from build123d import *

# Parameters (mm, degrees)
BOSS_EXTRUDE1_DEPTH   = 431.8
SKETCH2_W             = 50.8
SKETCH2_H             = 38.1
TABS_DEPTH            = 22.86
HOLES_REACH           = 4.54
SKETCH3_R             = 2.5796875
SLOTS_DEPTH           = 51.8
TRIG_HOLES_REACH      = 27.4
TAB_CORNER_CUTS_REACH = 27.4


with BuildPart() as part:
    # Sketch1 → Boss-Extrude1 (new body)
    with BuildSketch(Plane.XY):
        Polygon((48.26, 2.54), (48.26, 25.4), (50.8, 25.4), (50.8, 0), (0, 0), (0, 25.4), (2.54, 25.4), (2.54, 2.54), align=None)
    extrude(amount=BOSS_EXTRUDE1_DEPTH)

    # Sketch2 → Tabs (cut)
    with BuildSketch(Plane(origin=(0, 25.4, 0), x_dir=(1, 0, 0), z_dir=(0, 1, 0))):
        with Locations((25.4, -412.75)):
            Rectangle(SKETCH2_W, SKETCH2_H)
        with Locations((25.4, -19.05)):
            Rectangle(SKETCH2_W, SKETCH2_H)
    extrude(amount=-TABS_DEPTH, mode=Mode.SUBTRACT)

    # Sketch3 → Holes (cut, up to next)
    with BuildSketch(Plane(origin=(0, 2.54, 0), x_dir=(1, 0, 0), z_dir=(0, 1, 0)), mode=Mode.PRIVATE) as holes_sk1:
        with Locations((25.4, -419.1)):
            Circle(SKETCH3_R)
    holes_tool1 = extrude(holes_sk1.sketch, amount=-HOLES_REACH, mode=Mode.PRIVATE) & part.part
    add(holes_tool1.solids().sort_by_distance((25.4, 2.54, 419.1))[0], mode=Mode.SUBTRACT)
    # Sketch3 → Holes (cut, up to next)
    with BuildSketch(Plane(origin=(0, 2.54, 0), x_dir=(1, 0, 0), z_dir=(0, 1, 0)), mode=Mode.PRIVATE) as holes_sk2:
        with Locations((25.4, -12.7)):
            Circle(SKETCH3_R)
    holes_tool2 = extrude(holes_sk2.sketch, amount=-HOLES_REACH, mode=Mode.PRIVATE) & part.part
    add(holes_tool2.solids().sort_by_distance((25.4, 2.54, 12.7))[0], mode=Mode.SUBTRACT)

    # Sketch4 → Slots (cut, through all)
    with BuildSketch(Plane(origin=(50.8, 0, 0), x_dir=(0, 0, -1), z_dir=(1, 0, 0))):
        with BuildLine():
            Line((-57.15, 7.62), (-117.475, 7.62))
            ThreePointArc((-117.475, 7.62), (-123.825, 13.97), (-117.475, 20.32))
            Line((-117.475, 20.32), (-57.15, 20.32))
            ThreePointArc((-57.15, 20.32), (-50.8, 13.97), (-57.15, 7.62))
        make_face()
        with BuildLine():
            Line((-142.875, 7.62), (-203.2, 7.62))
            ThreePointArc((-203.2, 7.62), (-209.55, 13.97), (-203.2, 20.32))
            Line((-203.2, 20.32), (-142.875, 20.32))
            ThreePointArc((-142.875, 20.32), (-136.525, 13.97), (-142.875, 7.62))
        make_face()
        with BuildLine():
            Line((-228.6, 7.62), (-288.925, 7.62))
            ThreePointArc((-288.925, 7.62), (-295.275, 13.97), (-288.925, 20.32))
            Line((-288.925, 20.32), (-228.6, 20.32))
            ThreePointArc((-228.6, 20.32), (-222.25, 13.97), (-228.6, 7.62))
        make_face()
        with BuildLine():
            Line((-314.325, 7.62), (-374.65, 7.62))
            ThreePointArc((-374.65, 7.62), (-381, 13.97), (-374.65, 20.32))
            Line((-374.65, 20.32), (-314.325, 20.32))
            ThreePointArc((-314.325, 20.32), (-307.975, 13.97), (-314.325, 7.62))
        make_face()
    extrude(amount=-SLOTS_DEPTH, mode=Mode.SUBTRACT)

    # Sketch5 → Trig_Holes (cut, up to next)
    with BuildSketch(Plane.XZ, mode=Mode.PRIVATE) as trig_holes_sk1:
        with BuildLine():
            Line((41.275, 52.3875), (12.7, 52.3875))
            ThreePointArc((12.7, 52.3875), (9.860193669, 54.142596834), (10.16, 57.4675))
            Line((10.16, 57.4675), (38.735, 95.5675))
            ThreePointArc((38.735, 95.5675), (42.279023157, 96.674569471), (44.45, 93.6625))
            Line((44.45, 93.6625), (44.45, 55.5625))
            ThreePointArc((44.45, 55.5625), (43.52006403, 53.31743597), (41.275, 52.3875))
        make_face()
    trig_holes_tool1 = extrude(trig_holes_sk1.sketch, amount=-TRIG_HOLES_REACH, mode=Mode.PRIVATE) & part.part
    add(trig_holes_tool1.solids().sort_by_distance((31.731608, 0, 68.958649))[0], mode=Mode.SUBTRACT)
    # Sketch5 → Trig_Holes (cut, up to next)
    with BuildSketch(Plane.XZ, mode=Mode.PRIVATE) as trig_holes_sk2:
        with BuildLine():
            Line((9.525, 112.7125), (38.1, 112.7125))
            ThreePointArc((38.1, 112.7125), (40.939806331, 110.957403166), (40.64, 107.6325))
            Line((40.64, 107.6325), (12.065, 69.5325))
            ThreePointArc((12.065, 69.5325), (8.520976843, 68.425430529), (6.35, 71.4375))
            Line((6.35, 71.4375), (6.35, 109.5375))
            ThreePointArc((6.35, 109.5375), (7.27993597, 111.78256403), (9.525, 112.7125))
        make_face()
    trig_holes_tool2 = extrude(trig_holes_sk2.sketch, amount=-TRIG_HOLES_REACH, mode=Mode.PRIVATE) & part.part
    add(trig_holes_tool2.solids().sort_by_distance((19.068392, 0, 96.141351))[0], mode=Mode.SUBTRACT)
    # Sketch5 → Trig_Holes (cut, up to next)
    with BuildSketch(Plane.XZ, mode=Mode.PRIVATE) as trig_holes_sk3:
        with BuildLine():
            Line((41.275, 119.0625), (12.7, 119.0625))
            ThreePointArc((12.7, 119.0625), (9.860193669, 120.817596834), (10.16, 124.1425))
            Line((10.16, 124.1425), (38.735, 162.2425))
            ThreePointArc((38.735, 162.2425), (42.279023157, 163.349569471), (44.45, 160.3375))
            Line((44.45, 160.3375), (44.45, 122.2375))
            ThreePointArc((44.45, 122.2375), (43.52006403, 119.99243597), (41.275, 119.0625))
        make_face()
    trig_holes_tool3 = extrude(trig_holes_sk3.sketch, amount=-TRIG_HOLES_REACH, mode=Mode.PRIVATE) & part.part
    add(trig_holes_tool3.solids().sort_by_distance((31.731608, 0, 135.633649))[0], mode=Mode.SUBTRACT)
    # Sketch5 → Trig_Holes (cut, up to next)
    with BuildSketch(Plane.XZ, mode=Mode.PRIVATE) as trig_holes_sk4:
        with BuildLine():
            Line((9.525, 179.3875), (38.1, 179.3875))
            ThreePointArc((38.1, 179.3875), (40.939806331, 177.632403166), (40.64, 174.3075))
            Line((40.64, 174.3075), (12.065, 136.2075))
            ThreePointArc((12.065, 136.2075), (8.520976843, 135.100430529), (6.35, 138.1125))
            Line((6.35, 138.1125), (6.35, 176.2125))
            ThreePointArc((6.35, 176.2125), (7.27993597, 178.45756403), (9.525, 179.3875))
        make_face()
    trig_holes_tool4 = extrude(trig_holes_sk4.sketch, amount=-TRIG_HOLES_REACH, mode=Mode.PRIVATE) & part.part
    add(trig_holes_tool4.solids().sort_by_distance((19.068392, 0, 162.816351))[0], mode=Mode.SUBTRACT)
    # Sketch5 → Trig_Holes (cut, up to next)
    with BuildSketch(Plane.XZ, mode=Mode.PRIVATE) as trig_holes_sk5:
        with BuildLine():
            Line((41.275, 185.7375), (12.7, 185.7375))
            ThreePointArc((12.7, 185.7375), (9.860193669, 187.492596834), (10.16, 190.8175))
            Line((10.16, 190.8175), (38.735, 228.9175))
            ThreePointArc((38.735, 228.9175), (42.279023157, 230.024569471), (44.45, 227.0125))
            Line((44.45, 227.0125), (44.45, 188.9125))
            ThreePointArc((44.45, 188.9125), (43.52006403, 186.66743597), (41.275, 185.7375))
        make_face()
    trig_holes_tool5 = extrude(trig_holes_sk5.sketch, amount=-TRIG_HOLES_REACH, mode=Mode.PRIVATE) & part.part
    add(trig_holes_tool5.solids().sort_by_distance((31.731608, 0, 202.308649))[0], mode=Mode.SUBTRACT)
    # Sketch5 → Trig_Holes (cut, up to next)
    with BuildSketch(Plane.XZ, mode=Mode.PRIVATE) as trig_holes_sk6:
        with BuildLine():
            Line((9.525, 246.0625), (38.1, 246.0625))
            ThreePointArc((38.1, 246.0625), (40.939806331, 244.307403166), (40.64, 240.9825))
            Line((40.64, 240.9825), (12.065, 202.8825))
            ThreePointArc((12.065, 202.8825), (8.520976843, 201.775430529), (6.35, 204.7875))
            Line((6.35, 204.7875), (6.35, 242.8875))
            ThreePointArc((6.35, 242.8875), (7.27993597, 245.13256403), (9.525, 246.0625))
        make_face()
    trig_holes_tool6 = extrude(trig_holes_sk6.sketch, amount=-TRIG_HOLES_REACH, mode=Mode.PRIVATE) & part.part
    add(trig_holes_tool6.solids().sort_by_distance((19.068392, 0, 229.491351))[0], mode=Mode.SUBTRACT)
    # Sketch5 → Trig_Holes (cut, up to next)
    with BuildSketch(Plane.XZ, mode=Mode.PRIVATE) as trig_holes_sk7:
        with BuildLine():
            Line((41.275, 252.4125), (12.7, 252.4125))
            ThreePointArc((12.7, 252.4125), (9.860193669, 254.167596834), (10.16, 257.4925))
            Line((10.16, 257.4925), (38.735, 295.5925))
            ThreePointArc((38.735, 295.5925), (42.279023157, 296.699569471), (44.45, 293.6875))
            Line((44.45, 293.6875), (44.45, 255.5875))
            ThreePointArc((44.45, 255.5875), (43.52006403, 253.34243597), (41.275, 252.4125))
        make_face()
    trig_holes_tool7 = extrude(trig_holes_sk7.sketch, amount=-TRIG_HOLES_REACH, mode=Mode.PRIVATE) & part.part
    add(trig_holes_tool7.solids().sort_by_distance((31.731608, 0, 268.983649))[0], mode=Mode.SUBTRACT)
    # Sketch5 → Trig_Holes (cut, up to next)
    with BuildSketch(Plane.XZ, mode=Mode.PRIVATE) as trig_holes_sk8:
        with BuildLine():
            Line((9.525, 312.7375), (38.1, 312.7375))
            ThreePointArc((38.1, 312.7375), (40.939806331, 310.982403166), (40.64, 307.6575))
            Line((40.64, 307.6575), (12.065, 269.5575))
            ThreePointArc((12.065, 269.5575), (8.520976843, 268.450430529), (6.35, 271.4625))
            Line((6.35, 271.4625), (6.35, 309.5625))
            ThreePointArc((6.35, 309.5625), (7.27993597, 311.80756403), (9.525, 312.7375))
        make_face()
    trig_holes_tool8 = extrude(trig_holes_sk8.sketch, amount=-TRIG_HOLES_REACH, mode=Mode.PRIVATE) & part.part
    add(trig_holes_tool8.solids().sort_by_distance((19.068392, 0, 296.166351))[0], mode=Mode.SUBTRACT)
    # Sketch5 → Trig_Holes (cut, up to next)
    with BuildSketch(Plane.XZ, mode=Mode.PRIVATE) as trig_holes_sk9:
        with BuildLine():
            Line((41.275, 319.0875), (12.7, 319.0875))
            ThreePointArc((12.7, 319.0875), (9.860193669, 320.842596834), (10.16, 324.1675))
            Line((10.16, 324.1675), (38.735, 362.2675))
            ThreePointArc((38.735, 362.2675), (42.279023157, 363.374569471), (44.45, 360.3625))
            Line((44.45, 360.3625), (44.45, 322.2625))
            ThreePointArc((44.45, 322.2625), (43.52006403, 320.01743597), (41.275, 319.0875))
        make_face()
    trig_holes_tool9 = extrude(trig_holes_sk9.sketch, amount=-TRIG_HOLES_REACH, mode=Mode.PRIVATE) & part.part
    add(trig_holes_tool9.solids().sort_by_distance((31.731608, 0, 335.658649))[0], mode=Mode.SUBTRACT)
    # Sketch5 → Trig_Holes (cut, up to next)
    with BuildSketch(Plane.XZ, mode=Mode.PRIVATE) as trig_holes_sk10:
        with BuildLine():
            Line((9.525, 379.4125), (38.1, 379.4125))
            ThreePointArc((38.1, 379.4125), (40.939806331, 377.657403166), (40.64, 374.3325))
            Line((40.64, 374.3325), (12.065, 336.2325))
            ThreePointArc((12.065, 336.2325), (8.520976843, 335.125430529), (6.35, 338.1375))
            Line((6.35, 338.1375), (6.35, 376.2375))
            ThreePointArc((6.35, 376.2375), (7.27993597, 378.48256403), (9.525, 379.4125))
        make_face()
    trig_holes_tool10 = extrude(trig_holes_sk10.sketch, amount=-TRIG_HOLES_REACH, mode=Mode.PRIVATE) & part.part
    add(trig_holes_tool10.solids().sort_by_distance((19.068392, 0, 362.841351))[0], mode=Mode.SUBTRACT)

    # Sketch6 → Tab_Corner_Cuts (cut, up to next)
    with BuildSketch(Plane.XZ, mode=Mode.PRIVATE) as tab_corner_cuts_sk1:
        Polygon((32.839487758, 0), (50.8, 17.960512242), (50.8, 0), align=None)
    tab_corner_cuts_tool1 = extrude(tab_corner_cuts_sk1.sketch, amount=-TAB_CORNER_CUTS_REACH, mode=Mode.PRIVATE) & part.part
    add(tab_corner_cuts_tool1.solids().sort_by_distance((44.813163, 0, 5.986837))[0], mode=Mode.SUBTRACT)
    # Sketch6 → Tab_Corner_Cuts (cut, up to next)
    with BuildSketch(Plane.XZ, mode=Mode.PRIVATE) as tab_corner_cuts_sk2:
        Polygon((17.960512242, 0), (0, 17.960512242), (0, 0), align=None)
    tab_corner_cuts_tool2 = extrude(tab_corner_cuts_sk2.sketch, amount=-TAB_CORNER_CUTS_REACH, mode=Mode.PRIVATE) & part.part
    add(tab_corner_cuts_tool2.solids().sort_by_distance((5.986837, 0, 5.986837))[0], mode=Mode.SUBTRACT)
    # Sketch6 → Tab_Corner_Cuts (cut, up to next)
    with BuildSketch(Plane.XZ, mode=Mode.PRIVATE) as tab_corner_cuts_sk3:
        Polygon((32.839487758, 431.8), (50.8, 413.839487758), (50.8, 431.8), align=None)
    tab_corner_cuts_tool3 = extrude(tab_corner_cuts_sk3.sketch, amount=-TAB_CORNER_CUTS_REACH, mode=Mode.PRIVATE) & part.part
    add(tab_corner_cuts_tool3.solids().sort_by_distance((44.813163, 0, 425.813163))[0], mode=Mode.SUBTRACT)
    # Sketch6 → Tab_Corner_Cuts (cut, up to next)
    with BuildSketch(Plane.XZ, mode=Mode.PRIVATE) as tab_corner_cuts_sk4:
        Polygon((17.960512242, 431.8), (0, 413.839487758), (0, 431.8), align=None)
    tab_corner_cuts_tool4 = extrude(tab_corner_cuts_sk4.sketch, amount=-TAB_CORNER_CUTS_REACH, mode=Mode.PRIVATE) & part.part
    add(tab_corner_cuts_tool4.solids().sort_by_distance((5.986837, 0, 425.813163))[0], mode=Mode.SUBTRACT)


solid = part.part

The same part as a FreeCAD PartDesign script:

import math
import FreeCAD as App
import Part
import Sketcher

V = App.Vector
Q = App.Units.Quantity

doc = App.newDocument("Part")
body = doc.addObject("PartDesign::Body", "Body")

# Sketch on XY plane
sketch1 = doc.addObject("Sketcher::SketchObject", "Sketch")
body.addObject(sketch1)
sketch1.AttachmentSupport = (doc.XY_Plane, [""])
sketch1.MapMode = "FlatFace"
sketch1.addGeometry([
    Part.LineSegment(V(48.26, 25.4, 0), V(48.26, 2.54, 0)),  # 0
    Part.LineSegment(V(48.26, 2.54, 0), V(2.54, 2.54, 0)),  # 1
    Part.LineSegment(V(2.54, 2.54, 0), V(2.54, 25.4, 0)),  # 2
    Part.LineSegment(V(2.54, 25.4, 0), V(0, 25.4, 0)),  # 3
    Part.LineSegment(V(0, 25.4, 0), V(0, 0, 0)),  # 4
    Part.LineSegment(V(0, 0, 0), V(50.8, 0, 0)),  # 5
    Part.LineSegment(V(50.8, 0, 0), V(50.8, 25.4, 0)),  # 6
    Part.LineSegment(V(50.8, 25.4, 0), V(48.26, 25.4, 0)),  # 7
], False)
sketch1.addConstraint([
    Sketcher.Constraint("Coincident", 0, 2, 1, 1),
    Sketcher.Constraint("Coincident", 1, 2, 2, 1),
    Sketcher.Constraint("Coincident", 2, 2, 3, 1),
    Sketcher.Constraint("Coincident", 3, 2, 4, 1),
    Sketcher.Constraint("Coincident", 4, 2, 5, 1),
    Sketcher.Constraint("Coincident", 5, 2, 6, 1),
    Sketcher.Constraint("Coincident", 6, 2, 7, 1),
    Sketcher.Constraint("Coincident", 7, 2, 0, 1),
    Sketcher.Constraint("Vertical", 0),
    Sketcher.Constraint("Horizontal", 1),
    Sketcher.Constraint("Vertical", 2),
    Sketcher.Constraint("Horizontal", 3),
    Sketcher.Constraint("Vertical", 4),
    Sketcher.Constraint("Horizontal", 5),
    Sketcher.Constraint("Vertical", 6),
    Sketcher.Constraint("Horizontal", 7),
    Sketcher.Constraint("Coincident", 4, 2, -1, 1),
    Sketcher.Constraint("Horizontal", 3, 2, 6, 2),
    Sketcher.Constraint("Equal", 3, 7),
    Sketcher.Constraint("DistanceX", 5, 1, 5, 2, Q("2 in")),
    Sketcher.Constraint("DistanceY", 4, 2, 4, 1, Q("1 in")),
    Sketcher.Constraint("DistanceX", 1, 2, 1, 1, Q("1.8 in")),
    Sketcher.Constraint("DistanceY", 0, 2, 0, 1, Q("0.9 in")),
])
pad1 = doc.addObject("PartDesign::Pad", "Pad")
body.addObject(pad1)
pad1.Profile = sketch1
pad1.Length = Q("17 in")

# Sketch on XZ plane
sketch2 = doc.addObject("Sketcher::SketchObject", "Sketch001")
body.addObject(sketch2)
sketch2.AttachmentSupport = (doc.XZ_Plane, [""])
sketch2.MapMode = "FlatFace"
sketch2.AttachmentOffset = App.Placement(V(0, 0, -1 * 25.4), App.Rotation())
sketch2.addGeometry([
    Part.LineSegment(V(0, 393.7, 0), V(0, 431.8, 0)),  # 0
    Part.LineSegment(V(0, 431.8, 0), V(50.8, 431.8, 0)),  # 1
    Part.LineSegment(V(50.8, 431.8, 0), V(50.8, 393.7, 0)),  # 2
    Part.LineSegment(V(50.8, 393.7, 0), V(0, 393.7, 0)),  # 3
    Part.LineSegment(V(0, 0, 0), V(0, 38.1, 0)),  # 4
    Part.LineSegment(V(0, 38.1, 0), V(50.8, 38.1, 0)),  # 5
    Part.LineSegment(V(50.8, 38.1, 0), V(50.8, 0, 0)),  # 6
    Part.LineSegment(V(50.8, 0, 0), V(0, 0, 0)),  # 7
], False)
sketch2.addConstraint([
    Sketcher.Constraint("Coincident", 0, 2, 1, 1),
    Sketcher.Constraint("Coincident", 1, 2, 2, 1),
    Sketcher.Constraint("Coincident", 2, 2, 3, 1),
    Sketcher.Constraint("Coincident", 3, 2, 0, 1),
    Sketcher.Constraint("Coincident", 4, 2, 5, 1),
    Sketcher.Constraint("Coincident", 5, 2, 6, 1),
    Sketcher.Constraint("Coincident", 6, 2, 7, 1),
    Sketcher.Constraint("Coincident", 7, 2, 4, 1),
    Sketcher.Constraint("Vertical", 0),
    Sketcher.Constraint("Horizontal", 1),
    Sketcher.Constraint("Vertical", 2),
    Sketcher.Constraint("Horizontal", 3),
    Sketcher.Constraint("Vertical", 4),
    Sketcher.Constraint("Horizontal", 5),
    Sketcher.Constraint("Vertical", 6),
    Sketcher.Constraint("Horizontal", 7),
    Sketcher.Constraint("Coincident", 7, 2, -1, 1),
    Sketcher.Constraint("PointOnObject", 0, 2, -2),
    Sketcher.Constraint("Vertical", 2, 2, 5, 2),
    Sketcher.Constraint("Equal", 2, 4),
    Sketcher.Constraint("DistanceX", 1, 1, 1, 2, Q("2 in")),
    Sketcher.Constraint("DistanceY", 0, 1, 0, 2, Q("1.5 in")),
    Sketcher.Constraint("DistanceY", -1, 1, 0, 2, Q("17 in")),
])
pocket1 = doc.addObject("PartDesign::Pocket", "Pocket")
body.addObject(pocket1)
pocket1.Profile = sketch2
pocket1.Length = Q("0.9 in")
pocket1.Reversed = True

# Sketch on XZ plane
sketch3 = doc.addObject("Sketcher::SketchObject", "Sketch002")
body.addObject(sketch3)
sketch3.AttachmentSupport = (doc.XZ_Plane, [""])
sketch3.MapMode = "FlatFace"
sketch3.AttachmentOffset = App.Placement(V(0, 0, -0.1 * 25.4), App.Rotation())
sketch3.addGeometry(Part.Circle(V(25.4, 419.1, 0), V(0, 0, 1), 2.579687), False)
sketch3.addConstraint([
    Sketcher.Constraint("Diameter", 0, Q("0.203125 in")),
    Sketcher.Constraint("DistanceX", -1, 1, 0, 3, Q("1 in")),
    Sketcher.Constraint("DistanceY", -1, 1, 0, 3, Q("16.5 in")),
])
pocket2 = doc.addObject("PartDesign::Pocket", "Pocket001")
body.addObject(pocket2)
pocket2.Profile = sketch3
pocket2.Type = "UpToFirst"
pocket2.Reversed = True

# Sketch on XZ plane
sketch4 = doc.addObject("Sketcher::SketchObject", "Sketch003")
body.addObject(sketch4)
sketch4.AttachmentSupport = (doc.XZ_Plane, [""])
sketch4.MapMode = "FlatFace"
sketch4.AttachmentOffset = App.Placement(V(0, 0, -0.1 * 25.4), App.Rotation())
sketch4.addGeometry(Part.Circle(V(25.4, 12.7, 0), V(0, 0, 1), 2.579687), False)
sketch4.addConstraint([
    Sketcher.Constraint("Diameter", 0, Q("0.203125 in")),
    Sketcher.Constraint("DistanceX", -1, 1, 0, 3, Q("1 in")),
    Sketcher.Constraint("DistanceY", -1, 1, 0, 3, Q("0.5 in")),
])
pocket3 = doc.addObject("PartDesign::Pocket", "Pocket002")
body.addObject(pocket3)
pocket3.Profile = sketch4
pocket3.Type = "UpToFirst"
pocket3.Reversed = True

# Sketch on YZ plane
sketch5 = doc.addObject("Sketcher::SketchObject", "Sketch004")
body.addObject(sketch5)
sketch5.AttachmentSupport = (doc.YZ_Plane, [""])
sketch5.MapMode = "FlatFace"
sketch5.AttachmentOffset = App.Placement(V(0, 0, 2 * 25.4), App.Rotation())
sketch5.addGeometry([
    Part.LineSegment(V(7.62, 117.475, 0), V(7.62, 57.15, 0)),  # 0
    Part.ArcOfCircle(Part.Circle(V(13.97, 57.15, 0), V(0, 0, 1), 6.35), math.radians(180), math.radians(360)),  # 1
    Part.LineSegment(V(20.32, 57.15, 0), V(20.32, 117.475, 0)),  # 2
    Part.ArcOfCircle(Part.Circle(V(13.97, 117.475, 0), V(0, 0, 1), 6.35), math.radians(0), math.radians(180)),  # 3
    Part.LineSegment(V(7.62, 203.2, 0), V(7.62, 142.875, 0)),  # 4
    Part.ArcOfCircle(Part.Circle(V(13.97, 142.875, 0), V(0, 0, 1), 6.35), math.radians(180), math.radians(360)),  # 5
    Part.LineSegment(V(20.32, 142.875, 0), V(20.32, 203.2, 0)),  # 6
    Part.ArcOfCircle(Part.Circle(V(13.97, 203.2, 0), V(0, 0, 1), 6.35), math.radians(0), math.radians(180)),  # 7
    Part.LineSegment(V(7.62, 288.925, 0), V(7.62, 228.6, 0)),  # 8
    Part.ArcOfCircle(Part.Circle(V(13.97, 228.6, 0), V(0, 0, 1), 6.35), math.radians(180), math.radians(360)),  # 9
    Part.LineSegment(V(20.32, 228.6, 0), V(20.32, 288.925, 0)),  # 10
    Part.ArcOfCircle(Part.Circle(V(13.97, 288.925, 0), V(0, 0, 1), 6.35), math.radians(0), math.radians(180)),  # 11
    Part.LineSegment(V(7.62, 374.65, 0), V(7.62, 314.325, 0)),  # 12
    Part.ArcOfCircle(Part.Circle(V(13.97, 314.325, 0), V(0, 0, 1), 6.35), math.radians(180), math.radians(360)),  # 13
    Part.LineSegment(V(20.32, 314.325, 0), V(20.32, 374.65, 0)),  # 14
    Part.ArcOfCircle(Part.Circle(V(13.97, 374.65, 0), V(0, 0, 1), 6.35), math.radians(0), math.radians(180)),  # 15
], False)
sketch5.addConstraint([
    Sketcher.Constraint("Tangent", 0, 2, 1, 1),
    Sketcher.Constraint("Tangent", 1, 2, 2, 1),
    Sketcher.Constraint("Tangent", 2, 2, 3, 1),
    Sketcher.Constraint("Tangent", 3, 2, 0, 1),
    Sketcher.Constraint("Tangent", 4, 2, 5, 1),
    Sketcher.Constraint("Tangent", 5, 2, 6, 1),
    Sketcher.Constraint("Tangent", 6, 2, 7, 1),
    Sketcher.Constraint("Tangent", 7, 2, 4, 1),
    Sketcher.Constraint("Tangent", 8, 2, 9, 1),
    Sketcher.Constraint("Tangent", 9, 2, 10, 1),
    Sketcher.Constraint("Tangent", 10, 2, 11, 1),
    Sketcher.Constraint("Tangent", 11, 2, 8, 1),
    Sketcher.Constraint("Tangent", 12, 2, 13, 1),
    Sketcher.Constraint("Tangent", 13, 2, 14, 1),
    Sketcher.Constraint("Tangent", 14, 2, 15, 1),
    Sketcher.Constraint("Tangent", 15, 2, 12, 1),
    Sketcher.Constraint("Vertical", 0),
    Sketcher.Constraint("Vertical", 2),
    Sketcher.Constraint("Vertical", 4),
    Sketcher.Constraint("Vertical", 6),
    Sketcher.Constraint("Vertical", 8),
    Sketcher.Constraint("Vertical", 10),
    Sketcher.Constraint("Vertical", 12),
    Sketcher.Constraint("Vertical", 14),
    Sketcher.Constraint("Equal", 3, 5),
    Sketcher.Constraint("Equal", 7, 9),
    Sketcher.Constraint("Equal", 11, 13),
    Sketcher.Constraint("Vertical", 3, 3, 5, 3),
    Sketcher.Constraint("Vertical", 7, 3, 9, 3),
    Sketcher.Constraint("Vertical", 11, 3, 13, 3),
    Sketcher.Constraint("Equal", 2, 4),
    Sketcher.Constraint("Equal", 6, 8),
    Sketcher.Constraint("Equal", 10, 12),
    Sketcher.Constraint("Radius", 1, Q("0.25 in")),
    Sketcher.Constraint("DistanceY", -1, 1, 7, 3, Q("8 in")),
    Sketcher.Constraint("DistanceY", -1, 1, 9, 3, Q("9 in")),
    Sketcher.Constraint("DistanceY", 3, 3, 5, 3, Q("1 in")),
    Sketcher.Constraint("DistanceY", 11, 3, 13, 3, Q("1 in")),
    Sketcher.Constraint("DistanceX", -1, 1, 0, 2, Q("0.3 in")),
    Sketcher.Constraint("DistanceY", 0, 2, 0, 1, Q("2.375 in")),
])
pocket4 = doc.addObject("PartDesign::Pocket", "Pocket003")
body.addObject(pocket4)
pocket4.Profile = sketch5
pocket4.Type = "ThroughAll"

# Sketch on XZ plane
sketch6 = doc.addObject("Sketcher::SketchObject", "Sketch005")
body.addObject(sketch6)
sketch6.AttachmentSupport = (doc.XZ_Plane, [""])
sketch6.MapMode = "FlatFace"
sketch6.addGeometry([
    Part.LineSegment(V(12.7, 52.3875, 0), V(41.275, 52.3875, 0)),  # 0
    Part.ArcOfCircle(Part.Circle(V(41.275, 55.5625, 0), V(0, 0, 1), 3.175), math.radians(-90), math.radians(0)),  # 1
    Part.LineSegment(V(44.45, 55.5625, 0), V(44.45, 93.6625, 0)),  # 2
    Part.ArcOfCircle(Part.Circle(V(41.275, 93.6625, 0), V(0, 0, 1), 3.175), math.radians(0), math.radians(143.130102)),  # 3
    Part.LineSegment(V(38.735, 95.5675, 0), V(10.16, 57.4675, 0)),  # 4
    Part.ArcOfCircle(Part.Circle(V(12.7, 55.5625, 0), V(0, 0, 1), 3.175), math.radians(143.130102), math.radians(270)),  # 5
], False)
sketch6.addConstraint([
    Sketcher.Constraint("Tangent", 0, 2, 1, 1),
    Sketcher.Constraint("Tangent", 1, 2, 2, 1),
    Sketcher.Constraint("Tangent", 2, 2, 3, 1),
    Sketcher.Constraint("Tangent", 3, 2, 4, 1),
    Sketcher.Constraint("Tangent", 4, 2, 5, 1),
    Sketcher.Constraint("Tangent", 5, 2, 0, 1),
    Sketcher.Constraint("Horizontal", 0),
    Sketcher.Constraint("Vertical", 2),
    Sketcher.Constraint("Equal", 1, 3),
    Sketcher.Constraint("Equal", 3, 5),
    Sketcher.Constraint("DistanceY", 2, 1, 2, 2, Q("1.5 in")),
    Sketcher.Constraint("Radius", 1, Q("0.125 in")),
    Sketcher.Constraint("DistanceX", -1, 1, 5, 3, Q("0.5 in")),
    Sketcher.Constraint("DistanceX", -1, 1, 4, 2, Q("0.4 in")),
    Sketcher.Constraint("DistanceY", -1, 1, 1, 3, Q("2.1875 in")),
])
pocket5 = doc.addObject("PartDesign::Pocket", "Pocket004")
body.addObject(pocket5)
pocket5.Profile = sketch6
pocket5.Type = "UpToFirst"

# Sketch on XZ plane
sketch7 = doc.addObject("Sketcher::SketchObject", "Sketch006")
body.addObject(sketch7)
sketch7.AttachmentSupport = (doc.XZ_Plane, [""])
sketch7.MapMode = "FlatFace"
sketch7.addGeometry([
    Part.LineSegment(V(38.1, 112.7125, 0), V(9.525, 112.7125, 0)),  # 0
    Part.ArcOfCircle(Part.Circle(V(9.525, 109.5375, 0), V(0, 0, 1), 3.175), math.radians(90), math.radians(180)),  # 1
    Part.LineSegment(V(6.35, 109.5375, 0), V(6.35, 71.4375, 0)),  # 2
    Part.ArcOfCircle(Part.Circle(V(9.525, 71.4375, 0), V(0, 0, 1), 3.175), math.radians(180), math.radians(323.130102)),  # 3
    Part.LineSegment(V(12.065, 69.5325, 0), V(40.64, 107.6325, 0)),  # 4
    Part.ArcOfCircle(Part.Circle(V(38.1, 109.5375, 0), V(0, 0, 1), 3.175), math.radians(-36.869898), math.radians(90)),  # 5
], False)
sketch7.addConstraint([
    Sketcher.Constraint("Tangent", 0, 2, 1, 1),
    Sketcher.Constraint("Tangent", 1, 2, 2, 1),
    Sketcher.Constraint("Tangent", 2, 2, 3, 1),
    Sketcher.Constraint("Tangent", 3, 2, 4, 1),
    Sketcher.Constraint("Tangent", 4, 2, 5, 1),
    Sketcher.Constraint("Tangent", 5, 2, 0, 1),
    Sketcher.Constraint("Horizontal", 0),
    Sketcher.Constraint("Vertical", 2),
    Sketcher.Constraint("Equal", 1, 3),
    Sketcher.Constraint("Equal", 3, 5),
    Sketcher.Constraint("DistanceY", 2, 2, 2, 1, Q("1.5 in")),
    Sketcher.Constraint("Radius", 1, Q("0.125 in")),
    Sketcher.Constraint("DistanceX", -1, 1, 5, 3, Q("1.5 in")),
    Sketcher.Constraint("DistanceX", -1, 1, 4, 2, Q("1.6 in")),
    Sketcher.Constraint("DistanceY", -1, 1, 1, 3, Q("4.3125 in")),
])
pocket6 = doc.addObject("PartDesign::Pocket", "Pocket005")
body.addObject(pocket6)
pocket6.Profile = sketch7
pocket6.Type = "UpToFirst"

# Sketch on XZ plane
sketch8 = doc.addObject("Sketcher::SketchObject", "Sketch007")
body.addObject(sketch8)
sketch8.AttachmentSupport = (doc.XZ_Plane, [""])
sketch8.MapMode = "FlatFace"
sketch8.addGeometry([
    Part.LineSegment(V(12.7, 119.0625, 0), V(41.275, 119.0625, 0)),  # 0
    Part.ArcOfCircle(Part.Circle(V(41.275, 122.2375, 0), V(0, 0, 1), 3.175), math.radians(-90), math.radians(0)),  # 1
    Part.LineSegment(V(44.45, 122.2375, 0), V(44.45, 160.3375, 0)),  # 2
    Part.ArcOfCircle(Part.Circle(V(41.275, 160.3375, 0), V(0, 0, 1), 3.175), math.radians(0), math.radians(143.130102)),  # 3
    Part.LineSegment(V(38.735, 162.2425, 0), V(10.16, 124.1425, 0)),  # 4
    Part.ArcOfCircle(Part.Circle(V(12.7, 122.2375, 0), V(0, 0, 1), 3.175), math.radians(143.130102), math.radians(270)),  # 5
], False)
sketch8.addConstraint([
    Sketcher.Constraint("Tangent", 0, 2, 1, 1),
    Sketcher.Constraint("Tangent", 1, 2, 2, 1),
    Sketcher.Constraint("Tangent", 2, 2, 3, 1),
    Sketcher.Constraint("Tangent", 3, 2, 4, 1),
    Sketcher.Constraint("Tangent", 4, 2, 5, 1),
    Sketcher.Constraint("Tangent", 5, 2, 0, 1),
    Sketcher.Constraint("Horizontal", 0),
    Sketcher.Constraint("Vertical", 2),
    Sketcher.Constraint("Equal", 1, 3),
    Sketcher.Constraint("Equal", 3, 5),
    Sketcher.Constraint("DistanceY", 2, 1, 2, 2, Q("1.5 in")),
    Sketcher.Constraint("Radius", 1, Q("0.125 in")),
    Sketcher.Constraint("DistanceX", -1, 1, 5, 3, Q("0.5 in")),
    Sketcher.Constraint("DistanceX", -1, 1, 4, 2, Q("0.4 in")),
    Sketcher.Constraint("DistanceY", -1, 1, 1, 3, Q("4.8125 in")),
])
pocket7 = doc.addObject("PartDesign::Pocket", "Pocket006")
body.addObject(pocket7)
pocket7.Profile = sketch8
pocket7.Type = "UpToFirst"

# Sketch on XZ plane
sketch9 = doc.addObject("Sketcher::SketchObject", "Sketch008")
body.addObject(sketch9)
sketch9.AttachmentSupport = (doc.XZ_Plane, [""])
sketch9.MapMode = "FlatFace"
sketch9.addGeometry([
    Part.LineSegment(V(38.1, 179.3875, 0), V(9.525, 179.3875, 0)),  # 0
    Part.ArcOfCircle(Part.Circle(V(9.525, 176.2125, 0), V(0, 0, 1), 3.175), math.radians(90), math.radians(180)),  # 1
    Part.LineSegment(V(6.35, 176.2125, 0), V(6.35, 138.1125, 0)),  # 2
    Part.ArcOfCircle(Part.Circle(V(9.525, 138.1125, 0), V(0, 0, 1), 3.175), math.radians(180), math.radians(323.130102)),  # 3
    Part.LineSegment(V(12.065, 136.2075, 0), V(40.64, 174.3075, 0)),  # 4
    Part.ArcOfCircle(Part.Circle(V(38.1, 176.2125, 0), V(0, 0, 1), 3.175), math.radians(-36.869898), math.radians(90)),  # 5
], False)
sketch9.addConstraint([
    Sketcher.Constraint("Tangent", 0, 2, 1, 1),
    Sketcher.Constraint("Tangent", 1, 2, 2, 1),
    Sketcher.Constraint("Tangent", 2, 2, 3, 1),
    Sketcher.Constraint("Tangent", 3, 2, 4, 1),
    Sketcher.Constraint("Tangent", 4, 2, 5, 1),
    Sketcher.Constraint("Tangent", 5, 2, 0, 1),
    Sketcher.Constraint("Horizontal", 0),
    Sketcher.Constraint("Vertical", 2),
    Sketcher.Constraint("Equal", 1, 3),
    Sketcher.Constraint("Equal", 3, 5),
    Sketcher.Constraint("DistanceY", 2, 2, 2, 1, Q("1.5 in")),
    Sketcher.Constraint("Radius", 1, Q("0.125 in")),
    Sketcher.Constraint("DistanceX", -1, 1, 5, 3, Q("1.5 in")),
    Sketcher.Constraint("DistanceX", -1, 1, 4, 2, Q("1.6 in")),
    Sketcher.Constraint("DistanceY", -1, 1, 1, 3, Q("6.9375 in")),
])
pocket8 = doc.addObject("PartDesign::Pocket", "Pocket007")
body.addObject(pocket8)
pocket8.Profile = sketch9
pocket8.Type = "UpToFirst"

# Sketch on XZ plane
sketch10 = doc.addObject("Sketcher::SketchObject", "Sketch009")
body.addObject(sketch10)
sketch10.AttachmentSupport = (doc.XZ_Plane, [""])
sketch10.MapMode = "FlatFace"
sketch10.addGeometry([
    Part.LineSegment(V(12.7, 185.7375, 0), V(41.275, 185.7375, 0)),  # 0
    Part.ArcOfCircle(Part.Circle(V(41.275, 188.9125, 0), V(0, 0, 1), 3.175), math.radians(-90), math.radians(0)),  # 1
    Part.LineSegment(V(44.45, 188.9125, 0), V(44.45, 227.0125, 0)),  # 2
    Part.ArcOfCircle(Part.Circle(V(41.275, 227.0125, 0), V(0, 0, 1), 3.175), math.radians(0), math.radians(143.130102)),  # 3
    Part.LineSegment(V(38.735, 228.9175, 0), V(10.16, 190.8175, 0)),  # 4
    Part.ArcOfCircle(Part.Circle(V(12.7, 188.9125, 0), V(0, 0, 1), 3.175), math.radians(143.130102), math.radians(270)),  # 5
], False)
sketch10.addConstraint([
    Sketcher.Constraint("Tangent", 0, 2, 1, 1),
    Sketcher.Constraint("Tangent", 1, 2, 2, 1),
    Sketcher.Constraint("Tangent", 2, 2, 3, 1),
    Sketcher.Constraint("Tangent", 3, 2, 4, 1),
    Sketcher.Constraint("Tangent", 4, 2, 5, 1),
    Sketcher.Constraint("Tangent", 5, 2, 0, 1),
    Sketcher.Constraint("Horizontal", 0),
    Sketcher.Constraint("Vertical", 2),
    Sketcher.Constraint("Equal", 1, 3),
    Sketcher.Constraint("Equal", 3, 5),
    Sketcher.Constraint("DistanceY", 2, 1, 2, 2, Q("1.5 in")),
    Sketcher.Constraint("Radius", 1, Q("0.125 in")),
    Sketcher.Constraint("DistanceX", -1, 1, 5, 3, Q("0.5 in")),
    Sketcher.Constraint("DistanceX", -1, 1, 4, 2, Q("0.4 in")),
    Sketcher.Constraint("DistanceY", -1, 1, 1, 3, Q("7.4375 in")),
])
pocket9 = doc.addObject("PartDesign::Pocket", "Pocket008")
body.addObject(pocket9)
pocket9.Profile = sketch10
pocket9.Type = "UpToFirst"

# Sketch on XZ plane
sketch11 = doc.addObject("Sketcher::SketchObject", "Sketch010")
body.addObject(sketch11)
sketch11.AttachmentSupport = (doc.XZ_Plane, [""])
sketch11.MapMode = "FlatFace"
sketch11.addGeometry([
    Part.LineSegment(V(38.1, 246.0625, 0), V(9.525, 246.0625, 0)),  # 0
    Part.ArcOfCircle(Part.Circle(V(9.525, 242.8875, 0), V(0, 0, 1), 3.175), math.radians(90), math.radians(180)),  # 1
    Part.LineSegment(V(6.35, 242.8875, 0), V(6.35, 204.7875, 0)),  # 2
    Part.ArcOfCircle(Part.Circle(V(9.525, 204.7875, 0), V(0, 0, 1), 3.175), math.radians(180), math.radians(323.130102)),  # 3
    Part.LineSegment(V(12.065, 202.8825, 0), V(40.64, 240.9825, 0)),  # 4
    Part.ArcOfCircle(Part.Circle(V(38.1, 242.8875, 0), V(0, 0, 1), 3.175), math.radians(-36.869898), math.radians(90)),  # 5
], False)
sketch11.addConstraint([
    Sketcher.Constraint("Tangent", 0, 2, 1, 1),
    Sketcher.Constraint("Tangent", 1, 2, 2, 1),
    Sketcher.Constraint("Tangent", 2, 2, 3, 1),
    Sketcher.Constraint("Tangent", 3, 2, 4, 1),
    Sketcher.Constraint("Tangent", 4, 2, 5, 1),
    Sketcher.Constraint("Tangent", 5, 2, 0, 1),
    Sketcher.Constraint("Horizontal", 0),
    Sketcher.Constraint("Vertical", 2),
    Sketcher.Constraint("Equal", 1, 3),
    Sketcher.Constraint("Equal", 3, 5),
    Sketcher.Constraint("DistanceY", 2, 2, 2, 1, Q("1.5 in")),
    Sketcher.Constraint("Radius", 1, Q("0.125 in")),
    Sketcher.Constraint("DistanceX", -1, 1, 5, 3, Q("1.5 in")),
    Sketcher.Constraint("DistanceX", -1, 1, 4, 2, Q("1.6 in")),
    Sketcher.Constraint("DistanceY", -1, 1, 1, 3, Q("9.5625 in")),
])
pocket10 = doc.addObject("PartDesign::Pocket", "Pocket009")
body.addObject(pocket10)
pocket10.Profile = sketch11
pocket10.Type = "UpToFirst"

# Sketch on XZ plane
sketch12 = doc.addObject("Sketcher::SketchObject", "Sketch011")
body.addObject(sketch12)
sketch12.AttachmentSupport = (doc.XZ_Plane, [""])
sketch12.MapMode = "FlatFace"
sketch12.addGeometry([
    Part.LineSegment(V(12.7, 252.4125, 0), V(41.275, 252.4125, 0)),  # 0
    Part.ArcOfCircle(Part.Circle(V(41.275, 255.5875, 0), V(0, 0, 1), 3.175), math.radians(-90), math.radians(0)),  # 1
    Part.LineSegment(V(44.45, 255.5875, 0), V(44.45, 293.6875, 0)),  # 2
    Part.ArcOfCircle(Part.Circle(V(41.275, 293.6875, 0), V(0, 0, 1), 3.175), math.radians(0), math.radians(143.130102)),  # 3
    Part.LineSegment(V(38.735, 295.5925, 0), V(10.16, 257.4925, 0)),  # 4
    Part.ArcOfCircle(Part.Circle(V(12.7, 255.5875, 0), V(0, 0, 1), 3.175), math.radians(143.130102), math.radians(270)),  # 5
], False)
sketch12.addConstraint([
    Sketcher.Constraint("Tangent", 0, 2, 1, 1),
    Sketcher.Constraint("Tangent", 1, 2, 2, 1),
    Sketcher.Constraint("Tangent", 2, 2, 3, 1),
    Sketcher.Constraint("Tangent", 3, 2, 4, 1),
    Sketcher.Constraint("Tangent", 4, 2, 5, 1),
    Sketcher.Constraint("Tangent", 5, 2, 0, 1),
    Sketcher.Constraint("Horizontal", 0),
    Sketcher.Constraint("Vertical", 2),
    Sketcher.Constraint("Equal", 1, 3),
    Sketcher.Constraint("Equal", 3, 5),
    Sketcher.Constraint("DistanceY", 2, 1, 2, 2, Q("1.5 in")),
    Sketcher.Constraint("Radius", 1, Q("0.125 in")),
    Sketcher.Constraint("DistanceX", -1, 1, 5, 3, Q("0.5 in")),
    Sketcher.Constraint("DistanceX", -1, 1, 4, 2, Q("0.4 in")),
    Sketcher.Constraint("DistanceY", -1, 1, 1, 3, Q("10.0625 in")),
])
pocket11 = doc.addObject("PartDesign::Pocket", "Pocket010")
body.addObject(pocket11)
pocket11.Profile = sketch12
pocket11.Type = "UpToFirst"

# Sketch on XZ plane
sketch13 = doc.addObject("Sketcher::SketchObject", "Sketch012")
body.addObject(sketch13)
sketch13.AttachmentSupport = (doc.XZ_Plane, [""])
sketch13.MapMode = "FlatFace"
sketch13.addGeometry([
    Part.LineSegment(V(38.1, 312.7375, 0), V(9.525, 312.7375, 0)),  # 0
    Part.ArcOfCircle(Part.Circle(V(9.525, 309.5625, 0), V(0, 0, 1), 3.175), math.radians(90), math.radians(180)),  # 1
    Part.LineSegment(V(6.35, 309.5625, 0), V(6.35, 271.4625, 0)),  # 2
    Part.ArcOfCircle(Part.Circle(V(9.525, 271.4625, 0), V(0, 0, 1), 3.175), math.radians(180), math.radians(323.130102)),  # 3
    Part.LineSegment(V(12.065, 269.5575, 0), V(40.64, 307.6575, 0)),  # 4
    Part.ArcOfCircle(Part.Circle(V(38.1, 309.5625, 0), V(0, 0, 1), 3.175), math.radians(-36.869898), math.radians(90)),  # 5
], False)
sketch13.addConstraint([
    Sketcher.Constraint("Tangent", 0, 2, 1, 1),
    Sketcher.Constraint("Tangent", 1, 2, 2, 1),
    Sketcher.Constraint("Tangent", 2, 2, 3, 1),
    Sketcher.Constraint("Tangent", 3, 2, 4, 1),
    Sketcher.Constraint("Tangent", 4, 2, 5, 1),
    Sketcher.Constraint("Tangent", 5, 2, 0, 1),
    Sketcher.Constraint("Horizontal", 0),
    Sketcher.Constraint("Vertical", 2),
    Sketcher.Constraint("Equal", 1, 3),
    Sketcher.Constraint("Equal", 3, 5),
    Sketcher.Constraint("DistanceY", 2, 2, 2, 1, Q("1.5 in")),
    Sketcher.Constraint("Radius", 1, Q("0.125 in")),
    Sketcher.Constraint("DistanceX", -1, 1, 5, 3, Q("1.5 in")),
    Sketcher.Constraint("DistanceX", -1, 1, 4, 2, Q("1.6 in")),
    Sketcher.Constraint("DistanceY", -1, 1, 1, 3, Q("12.1875 in")),
])
pocket12 = doc.addObject("PartDesign::Pocket", "Pocket011")
body.addObject(pocket12)
pocket12.Profile = sketch13
pocket12.Type = "UpToFirst"

# Sketch on XZ plane
sketch14 = doc.addObject("Sketcher::SketchObject", "Sketch013")
body.addObject(sketch14)
sketch14.AttachmentSupport = (doc.XZ_Plane, [""])
sketch14.MapMode = "FlatFace"
sketch14.addGeometry([
    Part.LineSegment(V(12.7, 319.0875, 0), V(41.275, 319.0875, 0)),  # 0
    Part.ArcOfCircle(Part.Circle(V(41.275, 322.2625, 0), V(0, 0, 1), 3.175), math.radians(-90), math.radians(0)),  # 1
    Part.LineSegment(V(44.45, 322.2625, 0), V(44.45, 360.3625, 0)),  # 2
    Part.ArcOfCircle(Part.Circle(V(41.275, 360.3625, 0), V(0, 0, 1), 3.175), math.radians(0), math.radians(143.130102)),  # 3
    Part.LineSegment(V(38.735, 362.2675, 0), V(10.16, 324.1675, 0)),  # 4
    Part.ArcOfCircle(Part.Circle(V(12.7, 322.2625, 0), V(0, 0, 1), 3.175), math.radians(143.130102), math.radians(270)),  # 5
], False)
sketch14.addConstraint([
    Sketcher.Constraint("Tangent", 0, 2, 1, 1),
    Sketcher.Constraint("Tangent", 1, 2, 2, 1),
    Sketcher.Constraint("Tangent", 2, 2, 3, 1),
    Sketcher.Constraint("Tangent", 3, 2, 4, 1),
    Sketcher.Constraint("Tangent", 4, 2, 5, 1),
    Sketcher.Constraint("Tangent", 5, 2, 0, 1),
    Sketcher.Constraint("Horizontal", 0),
    Sketcher.Constraint("Vertical", 2),
    Sketcher.Constraint("Equal", 1, 3),
    Sketcher.Constraint("Equal", 3, 5),
    Sketcher.Constraint("DistanceY", 2, 1, 2, 2, Q("1.5 in")),
    Sketcher.Constraint("Radius", 1, Q("0.125 in")),
    Sketcher.Constraint("DistanceX", -1, 1, 5, 3, Q("0.5 in")),
    Sketcher.Constraint("DistanceX", -1, 1, 4, 2, Q("0.4 in")),
    Sketcher.Constraint("DistanceY", -1, 1, 1, 3, Q("12.6875 in")),
])
pocket13 = doc.addObject("PartDesign::Pocket", "Pocket012")
body.addObject(pocket13)
pocket13.Profile = sketch14
pocket13.Type = "UpToFirst"

# Sketch on XZ plane
sketch15 = doc.addObject("Sketcher::SketchObject", "Sketch014")
body.addObject(sketch15)
sketch15.AttachmentSupport = (doc.XZ_Plane, [""])
sketch15.MapMode = "FlatFace"
sketch15.addGeometry([
    Part.LineSegment(V(38.1, 379.4125, 0), V(9.525, 379.4125, 0)),  # 0
    Part.ArcOfCircle(Part.Circle(V(9.525, 376.2375, 0), V(0, 0, 1), 3.175), math.radians(90), math.radians(180)),  # 1
    Part.LineSegment(V(6.35, 376.2375, 0), V(6.35, 338.1375, 0)),  # 2
    Part.ArcOfCircle(Part.Circle(V(9.525, 338.1375, 0), V(0, 0, 1), 3.175), math.radians(180), math.radians(323.130102)),  # 3
    Part.LineSegment(V(12.065, 336.2325, 0), V(40.64, 374.3325, 0)),  # 4
    Part.ArcOfCircle(Part.Circle(V(38.1, 376.2375, 0), V(0, 0, 1), 3.175), math.radians(-36.869898), math.radians(90)),  # 5
], False)
sketch15.addConstraint([
    Sketcher.Constraint("Tangent", 0, 2, 1, 1),
    Sketcher.Constraint("Tangent", 1, 2, 2, 1),
    Sketcher.Constraint("Tangent", 2, 2, 3, 1),
    Sketcher.Constraint("Tangent", 3, 2, 4, 1),
    Sketcher.Constraint("Tangent", 4, 2, 5, 1),
    Sketcher.Constraint("Tangent", 5, 2, 0, 1),
    Sketcher.Constraint("Horizontal", 0),
    Sketcher.Constraint("Vertical", 2),
    Sketcher.Constraint("Equal", 1, 3),
    Sketcher.Constraint("Equal", 3, 5),
    Sketcher.Constraint("DistanceY", 2, 2, 2, 1, Q("1.5 in")),
    Sketcher.Constraint("Radius", 1, Q("0.125 in")),
    Sketcher.Constraint("DistanceX", -1, 1, 5, 3, Q("1.5 in")),
    Sketcher.Constraint("DistanceX", -1, 1, 4, 2, Q("1.6 in")),
    Sketcher.Constraint("DistanceY", -1, 1, 1, 3, Q("14.8125 in")),
])
pocket14 = doc.addObject("PartDesign::Pocket", "Pocket013")
body.addObject(pocket14)
pocket14.Profile = sketch15
pocket14.Type = "UpToFirst"

# Sketch on XZ plane
sketch16 = doc.addObject("Sketcher::SketchObject", "Sketch015")
body.addObject(sketch16)
sketch16.AttachmentSupport = (doc.XZ_Plane, [""])
sketch16.MapMode = "FlatFace"
sketch16.addGeometry([
    Part.LineSegment(V(50.8, 17.960512, 0), V(32.839488, 0, 0)),
    Part.LineSegment(V(32.839488, 0, 0), V(50.8, 0, 0)),
    Part.LineSegment(V(50.8, 0, 0), V(50.8, 17.960512, 0)),
], False)
sketch16.addConstraint([
    Sketcher.Constraint("Coincident", 0, 2, 1, 1),
    Sketcher.Constraint("Coincident", 1, 2, 2, 1),
    Sketcher.Constraint("Coincident", 2, 2, 0, 1),
    Sketcher.Constraint("Horizontal", 1),
    Sketcher.Constraint("Vertical", 2),
    Sketcher.Constraint("PointOnObject", 0, 2, -1),
    Sketcher.Constraint("Equal", 1, 2),
    Sketcher.Constraint("Distance", 0, Q("1 in")),
    Sketcher.Constraint("DistanceX", -1, 1, 1, 2, Q("2 in")),
])
pocket15 = doc.addObject("PartDesign::Pocket", "Pocket014")
body.addObject(pocket15)
pocket15.Profile = sketch16
pocket15.Type = "UpToFirst"

# Sketch on XZ plane
sketch17 = doc.addObject("Sketcher::SketchObject", "Sketch016")
body.addObject(sketch17)
sketch17.AttachmentSupport = (doc.XZ_Plane, [""])
sketch17.MapMode = "FlatFace"
sketch17.addGeometry([
    Part.LineSegment(V(17.960512, 0, 0), V(0, 17.960512, 0)),
    Part.LineSegment(V(0, 17.960512, 0), V(0, 0, 0)),
    Part.LineSegment(V(0, 0, 0), V(17.960512, 0, 0)),
], False)
sketch17.addConstraint([
    Sketcher.Constraint("Coincident", 0, 2, 1, 1),
    Sketcher.Constraint("Coincident", 1, 2, 2, 1),
    Sketcher.Constraint("Coincident", 2, 2, 0, 1),
    Sketcher.Constraint("Vertical", 1),
    Sketcher.Constraint("Horizontal", 2),
    Sketcher.Constraint("Coincident", 1, 2, -1, 1),
    Sketcher.Constraint("Equal", 2, 1),
    Sketcher.Constraint("Distance", 0, Q("1 in")),
])
pocket16 = doc.addObject("PartDesign::Pocket", "Pocket015")
body.addObject(pocket16)
pocket16.Profile = sketch17
pocket16.Type = "UpToFirst"

# Sketch on XZ plane
sketch18 = doc.addObject("Sketcher::SketchObject", "Sketch017")
body.addObject(sketch18)
sketch18.AttachmentSupport = (doc.XZ_Plane, [""])
sketch18.MapMode = "FlatFace"
sketch18.addGeometry([
    Part.LineSegment(V(32.839488, 431.8, 0), V(50.8, 413.839488, 0)),
    Part.LineSegment(V(50.8, 413.839488, 0), V(50.8, 431.8, 0)),
    Part.LineSegment(V(50.8, 431.8, 0), V(32.839488, 431.8, 0)),
], False)
sketch18.addConstraint([
    Sketcher.Constraint("Coincident", 0, 2, 1, 1),
    Sketcher.Constraint("Coincident", 1, 2, 2, 1),
    Sketcher.Constraint("Coincident", 2, 2, 0, 1),
    Sketcher.Constraint("Vertical", 1),
    Sketcher.Constraint("Horizontal", 2),
    Sketcher.Constraint("Equal", 2, 1),
    Sketcher.Constraint("Distance", 0, Q("1 in")),
    Sketcher.Constraint("DistanceX", -1, 1, 0, 2, Q("2 in")),
    Sketcher.Constraint("DistanceY", -1, 1, 1, 2, Q("17 in")),
])
pocket17 = doc.addObject("PartDesign::Pocket", "Pocket016")
body.addObject(pocket17)
pocket17.Profile = sketch18
pocket17.Type = "UpToFirst"

# Sketch on XZ plane
sketch19 = doc.addObject("Sketcher::SketchObject", "Sketch018")
body.addObject(sketch19)
sketch19.AttachmentSupport = (doc.XZ_Plane, [""])
sketch19.MapMode = "FlatFace"
sketch19.addGeometry([
    Part.LineSegment(V(0, 413.839488, 0), V(17.960512, 431.8, 0)),
    Part.LineSegment(V(17.960512, 431.8, 0), V(0, 431.8, 0)),
    Part.LineSegment(V(0, 431.8, 0), V(0, 413.839488, 0)),
], False)
sketch19.addConstraint([
    Sketcher.Constraint("Coincident", 0, 2, 1, 1),
    Sketcher.Constraint("Coincident", 1, 2, 2, 1),
    Sketcher.Constraint("Coincident", 2, 2, 0, 1),
    Sketcher.Constraint("Horizontal", 1),
    Sketcher.Constraint("Vertical", 2),
    Sketcher.Constraint("PointOnObject", 1, 2, -2),
    Sketcher.Constraint("Equal", 1, 2),
    Sketcher.Constraint("Distance", 0, Q("1 in")),
    Sketcher.Constraint("DistanceY", -1, 1, 0, 2, Q("17 in")),
])
pocket18 = doc.addObject("PartDesign::Pocket", "Pocket017")
body.addObject(pocket18)
pocket18.Profile = sketch19
pocket18.Type = "UpToFirst"

doc.recompute()
